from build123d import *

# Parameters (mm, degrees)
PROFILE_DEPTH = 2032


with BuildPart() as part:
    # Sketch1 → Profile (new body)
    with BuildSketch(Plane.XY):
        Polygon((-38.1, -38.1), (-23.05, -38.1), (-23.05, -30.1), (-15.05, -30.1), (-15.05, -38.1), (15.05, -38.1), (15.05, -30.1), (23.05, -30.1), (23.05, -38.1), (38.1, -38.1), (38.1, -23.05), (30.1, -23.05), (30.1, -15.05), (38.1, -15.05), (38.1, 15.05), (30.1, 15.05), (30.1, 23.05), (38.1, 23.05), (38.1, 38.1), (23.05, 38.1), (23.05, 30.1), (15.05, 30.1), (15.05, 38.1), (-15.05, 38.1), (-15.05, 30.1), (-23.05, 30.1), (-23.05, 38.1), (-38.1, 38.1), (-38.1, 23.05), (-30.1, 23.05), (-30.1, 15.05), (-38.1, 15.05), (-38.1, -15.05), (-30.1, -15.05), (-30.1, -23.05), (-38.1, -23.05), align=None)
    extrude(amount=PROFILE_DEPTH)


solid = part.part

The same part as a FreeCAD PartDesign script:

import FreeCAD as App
import Part
import Sketcher
Q = App.Units.Quantity


def add_polygon(sketch, points):
    """Adds a closed chain of lines whose ends are joined by coincident constraints."""
    first, n = sketch.GeometryCount, len(points)
    for a, b in zip(points, points[1:] + points[:1]):
        sketch.addGeometry(Part.LineSegment(App.Vector(*a, 0), App.Vector(*b, 0)), False)
    for i in range(n):
        sketch.addConstraint(Sketcher.Constraint("Coincident", first + i, 2, first + (i + 1) % n, 1))

doc = App.newDocument("Part")
body = doc.addObject("PartDesign::Body", "Body")

sketch1 = body.newObject("Sketcher::SketchObject", "Sketch")
sketch1.AttachmentSupport = (doc.getObject("XY_Plane"), [""])
sketch1.MapMode = "FlatFace"
add_polygon(sketch1, [(-38.1, -38.1), (-23.05, -38.1), (-23.05, -30.1), (-15.05, -30.1), (-15.05, -38.1), (15.05, -38.1), (15.05, -30.1), (23.05, -30.1), (23.05, -38.1), (38.1, -38.1), (38.1, -23.05), (30.1, -23.05), (30.1, -15.05), (38.1, -15.05), (38.1, 15.05), (30.1, 15.05), (30.1, 23.05), (38.1, 23.05), (38.1, 38.1), (23.05, 38.1), (23.05, 30.1), (15.05, 30.1), (15.05, 38.1), (-15.05, 38.1), (-15.05, 30.1), (-23.05, 30.1), (-23.05, 38.1), (-38.1, 38.1), (-38.1, 23.05), (-30.1, 23.05), (-30.1, 15.05), (-38.1, 15.05), (-38.1, -15.05), (-30.1, -15.05), (-30.1, -23.05), (-38.1, -23.05)])
sketch1.addConstraint(Sketcher.Constraint("Horizontal", 0))
sketch1.addConstraint(Sketcher.Constraint("Vertical", 1))
sketch1.addConstraint(Sketcher.Constraint("Horizontal", 2))
sketch1.addConstraint(Sketcher.Constraint("Vertical", 3))
sketch1.addConstraint(Sketcher.Constraint("Horizontal", 4))
sketch1.addConstraint(Sketcher.Constraint("Vertical", 5))
sketch1.addConstraint(Sketcher.Constraint("Horizontal", 6))
sketch1.addConstraint(Sketcher.Constraint("Vertical", 7))
sketch1.addConstraint(Sketcher.Constraint("Horizontal", 8))
sketch1.addConstraint(Sketcher.Constraint("Vertical", 9))
sketch1.addConstraint(Sketcher.Constraint("Horizontal", 10))
sketch1.addConstraint(Sketcher.Constraint("Vertical", 11))
sketch1.addConstraint(Sketcher.Constraint("Horizontal", 12))
sketch1.addConstraint(Sketcher.Constraint("Vertical", 13))
sketch1.addConstraint(Sketcher.Constraint("Horizontal", 14))
sketch1.addConstraint(Sketcher.Constraint("Vertical", 15))
sketch1.addConstraint(Sketcher.Constraint("Horizontal", 16))
sketch1.addConstraint(Sketcher.Constraint("Vertical", 17))
sketch1.addConstraint(Sketcher.Constraint("Horizontal", 18))
sketch1.addConstraint(Sketcher.Constraint("Vertical", 19))
sketch1.addConstraint(Sketcher.Constraint("Horizontal", 20))
sketch1.addConstraint(Sketcher.Constraint("Vertical", 21))
sketch1.addConstraint(Sketcher.Constraint("Horizontal", 22))
sketch1.addConstraint(Sketcher.Constraint("Vertical", 23))
sketch1.addConstraint(Sketcher.Constraint("Horizontal", 24))
sketch1.addConstraint(Sketcher.Constraint("Vertical", 25))
sketch1.addConstraint(Sketcher.Constraint("Horizontal", 26))
sketch1.addConstraint(Sketcher.Constraint("Vertical", 27))
sketch1.addConstraint(Sketcher.Constraint("Horizontal", 28))
sketch1.addConstraint(Sketcher.Constraint("Vertical", 29))
sketch1.addConstraint(Sketcher.Constraint("Horizontal", 30))
sketch1.addConstraint(Sketcher.Constraint("Vertical", 31))
sketch1.addConstraint(Sketcher.Constraint("Horizontal", 32))
sketch1.addConstraint(Sketcher.Constraint("Vertical", 33))
sketch1.addConstraint(Sketcher.Constraint("Horizontal", 34))
sketch1.addConstraint(Sketcher.Constraint("Vertical", 35))
sketch1.addConstraint(Sketcher.Constraint("Symmetric", 0, 2, 18, 2, -1, 1))
sketch1.addConstraint(Sketcher.Constraint("Symmetric", 2, 2, 20, 2, -1, 1))
sketch1.addConstraint(Sketcher.Constraint("Symmetric", 4, 2, 22, 2, -1, 1))
sketch1.addConstraint(Sketcher.Constraint("Symmetric", 6, 2, 24, 2, -1, 1))
sketch1.addConstraint(Sketcher.Constraint("Symmetric", 8, 2, 26, 2, -1, 1))
sketch1.addConstraint(Sketcher.Constraint("Symmetric", 10, 2, 28, 2, -1, 1))
sketch1.addConstraint(Sketcher.Constraint("Symmetric", 12, 2, 30, 2, -1, 1))
sketch1.addConstraint(Sketcher.Constraint("Symmetric", 14, 2, 32, 2, -1, 1))
sketch1.addConstraint(Sketcher.Constraint("Symmetric", 16, 2, 34, 2, -1, 1))
sketch1.addConstraint(Sketcher.Constraint("Symmetric", 2, 2, 5, 2, -2))
sketch1.addConstraint(Sketcher.Constraint("Symmetric", 0, 2, 7, 2, -2))
sketch1.addConstraint(Sketcher.Constraint("Symmetric", 16, 2, 27, 2, -2))
sketch1.addConstraint(Sketcher.Constraint("Symmetric", 14, 2, 29, 2, -2))
sketch1.addConstraint(Sketcher.Constraint("Horizontal", 0, 2, 3, 2))
sketch1.addConstraint(Sketcher.Constraint("Vertical", 9, 2, 12, 2))
sketch1.addConstraint(Sketcher.Constraint("Equal", 6, 10))
sketch1.addConstraint(Sketcher.Constraint("Equal", 34, 1))
sketch1.addConstraint(Sketcher.Constraint("Equal", 26, 9))
sketch1.addConstraint(Sketcher.Constraint("Equal", 7, 11))
sketch1.addConstraint(Sketcher.Constraint("Equal", 22, 13))
sketch1.addConstraint(Sketcher.Constraint("DistanceX", 2, 1, 2, 2, Q("8 mm")))
sketch1.addConstraint(Sketcher.Constraint("DistanceX", 4, 1, 4, 2, Q("30.1 mm")))
sketch1.addConstraint(Sketcher.Constraint("DistanceX", 0, 1, 0, 2, Q("15.05 mm")))
pad1 = body.newObject("PartDesign::Pad", "Pad")
pad1.Profile = sketch1
pad1.Length = 2032

doc.recompute()
